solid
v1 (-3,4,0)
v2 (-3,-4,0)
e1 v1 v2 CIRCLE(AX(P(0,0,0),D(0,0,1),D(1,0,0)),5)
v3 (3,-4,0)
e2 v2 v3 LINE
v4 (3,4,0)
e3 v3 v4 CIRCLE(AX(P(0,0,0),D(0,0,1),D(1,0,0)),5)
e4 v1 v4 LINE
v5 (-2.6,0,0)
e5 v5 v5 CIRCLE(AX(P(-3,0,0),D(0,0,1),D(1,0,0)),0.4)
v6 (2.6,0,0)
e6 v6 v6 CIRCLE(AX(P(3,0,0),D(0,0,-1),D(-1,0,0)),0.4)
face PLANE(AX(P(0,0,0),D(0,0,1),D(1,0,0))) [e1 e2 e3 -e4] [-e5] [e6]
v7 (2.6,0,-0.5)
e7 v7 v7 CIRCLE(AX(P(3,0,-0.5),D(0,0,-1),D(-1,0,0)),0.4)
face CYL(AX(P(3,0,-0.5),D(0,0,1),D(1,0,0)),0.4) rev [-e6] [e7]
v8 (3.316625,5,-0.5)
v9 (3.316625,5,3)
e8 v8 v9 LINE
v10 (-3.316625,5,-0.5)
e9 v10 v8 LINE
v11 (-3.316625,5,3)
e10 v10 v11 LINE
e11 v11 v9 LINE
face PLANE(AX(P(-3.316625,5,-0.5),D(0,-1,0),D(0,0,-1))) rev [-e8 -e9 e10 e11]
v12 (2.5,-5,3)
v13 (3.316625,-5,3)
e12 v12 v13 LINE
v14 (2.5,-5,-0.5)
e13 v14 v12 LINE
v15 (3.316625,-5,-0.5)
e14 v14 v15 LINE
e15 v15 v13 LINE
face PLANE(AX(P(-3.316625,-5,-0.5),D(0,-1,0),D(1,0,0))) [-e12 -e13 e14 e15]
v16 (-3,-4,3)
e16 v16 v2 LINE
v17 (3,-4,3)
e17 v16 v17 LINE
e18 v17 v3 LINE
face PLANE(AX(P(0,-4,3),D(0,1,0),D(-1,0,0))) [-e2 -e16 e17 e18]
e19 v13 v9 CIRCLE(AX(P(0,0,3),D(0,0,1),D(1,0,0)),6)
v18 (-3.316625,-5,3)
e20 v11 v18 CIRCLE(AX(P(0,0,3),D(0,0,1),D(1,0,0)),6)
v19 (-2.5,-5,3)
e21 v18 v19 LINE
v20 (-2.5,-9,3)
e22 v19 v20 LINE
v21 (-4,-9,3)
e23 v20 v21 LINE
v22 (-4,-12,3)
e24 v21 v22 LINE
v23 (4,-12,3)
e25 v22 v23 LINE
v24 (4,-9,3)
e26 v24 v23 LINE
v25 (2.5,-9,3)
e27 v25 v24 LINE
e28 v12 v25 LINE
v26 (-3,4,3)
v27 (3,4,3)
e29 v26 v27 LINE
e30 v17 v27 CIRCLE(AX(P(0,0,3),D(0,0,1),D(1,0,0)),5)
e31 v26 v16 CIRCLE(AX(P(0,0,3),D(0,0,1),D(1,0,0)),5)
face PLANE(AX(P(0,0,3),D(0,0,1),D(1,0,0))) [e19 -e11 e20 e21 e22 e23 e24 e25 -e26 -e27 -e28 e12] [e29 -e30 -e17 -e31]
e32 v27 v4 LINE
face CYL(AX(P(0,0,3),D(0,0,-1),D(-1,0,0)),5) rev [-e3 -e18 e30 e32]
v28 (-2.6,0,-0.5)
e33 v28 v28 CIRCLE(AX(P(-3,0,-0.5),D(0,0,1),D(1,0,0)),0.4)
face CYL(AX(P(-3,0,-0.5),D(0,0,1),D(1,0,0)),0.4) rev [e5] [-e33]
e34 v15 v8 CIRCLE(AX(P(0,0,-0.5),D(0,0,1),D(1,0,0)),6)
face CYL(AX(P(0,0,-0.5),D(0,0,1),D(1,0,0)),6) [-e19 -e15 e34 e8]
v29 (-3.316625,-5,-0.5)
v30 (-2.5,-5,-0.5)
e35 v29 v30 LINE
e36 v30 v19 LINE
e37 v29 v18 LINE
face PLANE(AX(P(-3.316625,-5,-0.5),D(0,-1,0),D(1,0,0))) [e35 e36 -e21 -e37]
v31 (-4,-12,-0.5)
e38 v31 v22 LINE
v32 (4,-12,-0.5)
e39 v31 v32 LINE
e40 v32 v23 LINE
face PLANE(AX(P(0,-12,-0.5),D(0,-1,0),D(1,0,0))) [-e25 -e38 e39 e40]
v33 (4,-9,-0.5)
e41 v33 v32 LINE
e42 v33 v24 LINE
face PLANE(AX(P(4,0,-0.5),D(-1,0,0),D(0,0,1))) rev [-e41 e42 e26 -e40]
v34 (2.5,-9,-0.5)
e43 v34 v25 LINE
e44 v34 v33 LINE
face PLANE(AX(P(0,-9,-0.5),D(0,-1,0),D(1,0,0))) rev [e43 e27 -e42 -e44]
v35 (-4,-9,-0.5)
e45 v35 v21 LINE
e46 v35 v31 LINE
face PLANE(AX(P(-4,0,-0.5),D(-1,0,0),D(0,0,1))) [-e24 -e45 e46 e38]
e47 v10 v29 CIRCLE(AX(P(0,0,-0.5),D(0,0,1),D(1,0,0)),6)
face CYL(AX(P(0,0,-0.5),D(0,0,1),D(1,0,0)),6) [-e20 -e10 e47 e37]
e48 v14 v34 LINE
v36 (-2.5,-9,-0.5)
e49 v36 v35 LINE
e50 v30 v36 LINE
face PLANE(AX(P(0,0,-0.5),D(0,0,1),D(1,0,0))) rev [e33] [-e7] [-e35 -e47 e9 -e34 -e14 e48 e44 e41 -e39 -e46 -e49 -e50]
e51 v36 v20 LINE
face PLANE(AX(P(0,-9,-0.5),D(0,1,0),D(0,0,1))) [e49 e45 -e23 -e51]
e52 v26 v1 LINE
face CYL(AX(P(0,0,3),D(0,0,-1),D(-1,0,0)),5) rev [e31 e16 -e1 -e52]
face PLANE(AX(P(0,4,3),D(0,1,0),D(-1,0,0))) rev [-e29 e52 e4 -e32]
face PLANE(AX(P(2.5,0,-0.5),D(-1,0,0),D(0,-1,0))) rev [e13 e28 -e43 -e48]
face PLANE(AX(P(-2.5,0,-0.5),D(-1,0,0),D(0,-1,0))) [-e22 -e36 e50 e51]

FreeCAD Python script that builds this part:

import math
import FreeCAD as App
import Part
import Sketcher
from FreeCAD import Vector


def add_polygon(sketch, points):
    """Adds a closed chain of lines whose ends are joined by coincident constraints."""
    first, n = sketch.GeometryCount, len(points)
    for a, b in zip(points, points[1:] + points[:1]):
        sketch.addGeometry(Part.LineSegment(App.Vector(*a, 0), App.Vector(*b, 0)), False)
    for i in range(n):
        sketch.addConstraint(Sketcher.Constraint("Coincident", first + i, 2, first + (i + 1) % n, 1))

doc = App.newDocument("Part")
params = doc.addObject("Spreadsheet::Sheet", "Params")
for row, (alias, value) in enumerate([
    ("sketch1_radius", "6 mm"),
    ("pad1_length", "0.5 mm"),
    ("sketch2_radius", "6 mm"),
    ("sketch2_radius2", "5 mm"),
    ("sketch2_width", "6 mm"),
    ("pad2_length", "3 mm"),
    ("sketch3_diameter", "0.8 mm"),
    ("sketch4_width", "5 mm"),
    ("sketch4_width2", "8 mm"),
    ("sketch4_height", "4 mm"),
    ("sketch4_height2", "3 mm"),
    ("pad3_length", "3 mm"),
    ("pad3_length2", "0.5 mm"),
], start=1):
    params.set(f"A{row}", alias)
    params.set(f"B{row}", "=" + value)
    params.setAlias(f"B{row}", alias)

body = doc.addObject("PartDesign::Body", "Body")

sketch1 = body.newObject("Sketcher::SketchObject", "Sketch")
sketch1.AttachmentSupport = (doc.getObject("XY_Plane"), [""])
sketch1.MapMode = "FlatFace"
sketch1.addGeometry([
    Part.LineSegment(Vector(3, 5, 0), Vector(-3, 5, 0)),
    Part.ArcOfCircle(Part.Circle(Vector(0, 0, 0), Vector(0, 0, 1), 6), math.radians(124), math.radians(236)),
    Part.LineSegment(Vector(-3, -5, 0), Vector(3, -5, 0)),
    Part.ArcOfCircle(Part.Circle(Vector(0, 0, 0), Vector(0, 0, 1), 6), math.radians(-56), math.radians(56)),
], False)
sketch1.addConstraint([
    Sketcher.Constraint("Coincident", 0, 2, 1, 1),
    Sketcher.Constraint("Coincident", 1, 2, 2, 1),
    Sketcher.Constraint("Coincident", 2, 2, 3, 1),
    Sketcher.Constraint("Coincident", 3, 2, 0, 1),
    Sketcher.Constraint("Horizontal", 0),
    Sketcher.Constraint("Horizontal", 2),
    Sketcher.Constraint("Coincident", 1, 3, -1, 1),
    Sketcher.Constraint("Coincident", 3, 3, -1, 1),
    Sketcher.Constraint("Equal", 1, 3),
    Sketcher.Constraint("Vertical", 0, 2, 1, 2),
    Sketcher.Constraint("Radius", 1, 6.0),
    Sketcher.Constraint("DistanceY", -1, 1, 0, 2, 5.0),
])
sketch1.setExpression("Constraints[10]", "Params.sketch1_radius")
pad1 = body.newObject("PartDesign::Pad", "Pad")
pad1.Profile = sketch1
pad1.setExpression("Length", "Params.pad1_length")
pad1.Reversed = True

sketch2 = body.newObject("Sketcher::SketchObject", "Sketch001")
sketch2.AttachmentSupport = (doc.getObject("XY_Plane"), [""])
sketch2.MapMode = "FlatFace"
sketch2.addGeometry([
    Part.LineSegment(Vector(3, 5, 0), Vector(-3, 5, 0)),
    Part.ArcOfCircle(Part.Circle(Vector(0, 0, 0), Vector(0, 0, 1), 6), math.radians(124), math.radians(236)),
    Part.LineSegment(Vector(-3, -5, 0), Vector(3, -5, 0)),
    Part.ArcOfCircle(Part.Circle(Vector(0, 0, 0), Vector(0, 0, 1), 6), math.radians(-56), math.radians(56)),
    Part.LineSegment(Vector(3, -4, 0), Vector(-3, -4, 0)),
    Part.ArcOfCircle(Part.Circle(Vector(0, 0, 0), Vector(0, 0, 1), 5), math.radians(127), math.radians(233)),
    Part.LineSegment(Vector(-3, 4, 0), Vector(3, 4, 0)),
    Part.ArcOfCircle(Part.Circle(Vector(0, 0, 0), Vector(0, 0, 1), 5), math.radians(-53), math.radians(53)),
], False)
sketch2.addConstraint([
    Sketcher.Constraint("Coincident", 0, 2, 1, 1),
    Sketcher.Constraint("Coincident", 1, 2, 2, 1),
    Sketcher.Constraint("Coincident", 2, 2, 3, 1),
    Sketcher.Constraint("Coincident", 3, 2, 0, 1),
    Sketcher.Constraint("Coincident", 4, 2, 5, 2),
    Sketcher.Constraint("Coincident", 5, 1, 6, 1),
    Sketcher.Constraint("Coincident", 6, 2, 7, 2),
    Sketcher.Constraint("Coincident", 7, 1, 4, 1),
    Sketcher.Constraint("Horizontal", 0),
    Sketcher.Constraint("Horizontal", 2),
    Sketcher.Constraint("Horizontal", 4),
    Sketcher.Constraint("Horizontal", 6),
    Sketcher.Constraint("Coincident", 1, 3, -1, 1),
    Sketcher.Constraint("Coincident", 3, 3, -1, 1),
    Sketcher.Constraint("Coincident", 5, 3, -1, 1),
    Sketcher.Constraint("Coincident", 7, 3, -1, 1),
    Sketcher.Constraint("Equal", 1, 3),
    Sketcher.Constraint("Equal", 5, 7),
    Sketcher.Constraint("Vertical", 0, 2, 1, 2),
    Sketcher.Constraint("Vertical", 4, 2, 5, 1),
    Sketcher.Constraint("Radius", 1, 6.0),
    Sketcher.Constraint("Radius", 5, 5.0),
    Sketcher.Constraint("DistanceX", 4, 2, 4, 1, 6.0),
    Sketcher.Constraint("DistanceY", -1, 1, 0, 2, 5.0),
])
sketch2.setExpression("Constraints[20]", "Params.sketch2_radius")
sketch2.setExpression("Constraints[21]", "Params.sketch2_radius2")
sketch2.setExpression("Constraints[22]", "Params.sketch2_width")
pad2 = body.newObject("PartDesign::Pad", "Pad001")
pad2.Profile = sketch2
pad2.setExpression("Length", "Params.pad2_length")

sketch3 = body.newObject("Sketcher::SketchObject", "Sketch002")
sketch3.AttachmentSupport = (doc.getObject("XY_Plane"), [""])
sketch3.MapMode = "FlatFace"
sketch3.addGeometry([
    Part.Circle(Vector(-3, 0, 0), Vector(0, 0, 1), 0.4),
    Part.Circle(Vector(3, 0, 0), Vector(0, 0, 1), 0.4),
], False)
sketch3.addConstraint([
    Sketcher.Constraint("Equal", 0, 1),
    Sketcher.Constraint("Symmetric", 0, 3, 1, 3, -1, 1),
    Sketcher.Constraint("PointOnObject", 0, 3, -1),
    Sketcher.Constraint("Diameter", 0, 0.8),
    Sketcher.Constraint("DistanceX", 0, 3, -1, 1, 3.0),
])
sketch3.setExpression("Constraints[3]", "Params.sketch3_diameter")
pocket1 = body.newObject("PartDesign::Pocket", "Pocket")
pocket1.Profile = sketch3
pocket1.Type = "ThroughAll"

sketch4 = body.newObject("Sketcher::SketchObject", "Sketch003")
sketch4.AttachmentSupport = (doc.getObject("XY_Plane"), [""])
sketch4.MapMode = "FlatFace"
add_polygon(sketch4, [(2.5, -5), (-2.5, -5), (-2.5, -9), (-4, -9), (-4, -12), (4, -12), (4, -9), (2.5, -9)])
sketch4.addConstraint([
    Sketcher.Constraint("Horizontal", 0),
    Sketcher.Constraint("Vertical", 1),
    Sketcher.Constraint("Horizontal", 2),
    Sketcher.Constraint("Vertical", 3),
    Sketcher.Constraint("Horizontal", 4),
    Sketcher.Constraint("Vertical", 5),
    Sketcher.Constraint("Horizontal", 6),
    Sketcher.Constraint("Vertical", 7),
    Sketcher.Constraint("Symmetric", 2, 2, 5, 2, -2),
    Sketcher.Constraint("Equal", 2, 6),
    Sketcher.Constraint("DistanceX", 0, 2, 0, 1, 5.0),
    Sketcher.Constraint("DistanceX", 4, 1, 4, 2, 8.0),
    Sketcher.Constraint("DistanceY", 1, 2, 1, 1, 4.0),
    Sketcher.Constraint("DistanceY", 3, 2, 3, 1, 3.0),
    Sketcher.Constraint("DistanceY", 0, 2, -1, 1, 5.0),
])
sketch4.setExpression("Constraints[18]", "Params.sketch4_width")
sketch4.setExpression("Constraints[19]", "Params.sketch4_width2")
sketch4.setExpression("Constraints[20]", "Params.sketch4_height")
sketch4.setExpression("Constraints[21]", "Params.sketch4_height2")
pad3 = body.newObject("PartDesign::Pad", "Pad002")
pad3.Profile = sketch4
pad3.Type = "TwoLengths"
pad3.setExpression("Length", "Params.pad3_length")
pad3.setExpression("Length2", "Params.pad3_length2")

doc.recompute()
